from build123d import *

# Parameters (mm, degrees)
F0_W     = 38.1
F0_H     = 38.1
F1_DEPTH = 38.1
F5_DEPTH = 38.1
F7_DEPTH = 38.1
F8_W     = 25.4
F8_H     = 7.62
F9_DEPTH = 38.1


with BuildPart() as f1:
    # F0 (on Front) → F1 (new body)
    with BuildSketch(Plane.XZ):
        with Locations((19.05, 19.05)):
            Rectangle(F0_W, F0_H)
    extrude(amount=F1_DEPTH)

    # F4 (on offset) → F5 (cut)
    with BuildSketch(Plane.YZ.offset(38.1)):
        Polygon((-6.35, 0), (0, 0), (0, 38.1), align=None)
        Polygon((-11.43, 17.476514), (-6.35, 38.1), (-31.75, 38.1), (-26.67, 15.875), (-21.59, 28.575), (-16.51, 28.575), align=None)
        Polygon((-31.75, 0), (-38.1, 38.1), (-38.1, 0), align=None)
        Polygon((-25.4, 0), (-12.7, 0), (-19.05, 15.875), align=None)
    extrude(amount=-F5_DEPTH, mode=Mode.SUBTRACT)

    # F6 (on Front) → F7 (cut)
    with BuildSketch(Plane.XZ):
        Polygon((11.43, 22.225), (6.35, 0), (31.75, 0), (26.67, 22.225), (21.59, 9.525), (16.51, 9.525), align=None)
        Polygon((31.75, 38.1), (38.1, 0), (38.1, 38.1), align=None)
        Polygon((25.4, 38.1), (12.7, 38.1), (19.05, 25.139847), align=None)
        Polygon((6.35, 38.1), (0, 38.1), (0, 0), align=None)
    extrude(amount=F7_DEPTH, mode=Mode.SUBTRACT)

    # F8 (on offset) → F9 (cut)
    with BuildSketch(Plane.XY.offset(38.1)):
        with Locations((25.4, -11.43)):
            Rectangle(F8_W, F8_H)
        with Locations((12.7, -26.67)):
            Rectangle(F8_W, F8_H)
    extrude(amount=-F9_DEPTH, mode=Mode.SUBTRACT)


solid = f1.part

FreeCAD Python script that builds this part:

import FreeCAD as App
import Part
import Sketcher
Q = App.Units.Quantity

doc = App.newDocument("Part")
params = doc.addObject("Spreadsheet::Sheet", "Params")
for row, (alias, value) in enumerate([
    ("sketch1_width", "1.5 in"),
    ("pad1_length", "1.5 in"),
    ("sketch2_width", "1 in"),
    ("sketch2_width2", "0.2 in"),
    ("sketch2_width3", "0.5 in"),
    ("sketch2_height", "1.5 in"),
    ("sketch2_width4", "0.25 in"),
    ("pocket1_length", "1.5 in"),
    ("sketch3_width", "1 in"),
    ("sketch3_width2", "0.2 in"),
    ("sketch3_width3", "0.5 in"),
    ("sketch3_height", "1.5 in"),
    ("pocket2_length", "1.5 in"),
    ("sketch4_width", "1 in"),
    ("sketch4_height", "0.3 in"),
    ("pocket3_length", "1.5 in"),
], start=1):
    params.set(f"A{row}", alias)
    params.set(f"B{row}", "=" + value)
    params.setAlias(f"B{row}", alias)

body = doc.addObject("PartDesign::Body", "Body")

# Sketch on XZ plane
sketch1 = body.newObject("Sketcher::SketchObject", "Sketch")
sketch1.AttachmentSupport = (doc.getObject("XZ_Plane"), [""])
sketch1.MapMode = "FlatFace"
sketch1.addGeometry([
    Part.LineSegment(App.Vector(0, 38, 0), App.Vector(0, 0, 0)),
    Part.LineSegment(App.Vector(0, 0, 0), App.Vector(38, 0, 0)),
    Part.LineSegment(App.Vector(38, 0, 0), App.Vector(38, 38, 0)),
    Part.LineSegment(App.Vector(38, 38, 0), App.Vector(0, 38, 0)),
], False)
sketch1.addConstraint([
    Sketcher.Constraint("Coincident", 0, 2, 1, 1),
    Sketcher.Constraint("Coincident", 1, 2, 2, 1),
    Sketcher.Constraint("Coincident", 2, 2, 3, 1),
    Sketcher.Constraint("Coincident", 3, 2, 0, 1),
    Sketcher.Constraint("Vertical", 0),
    Sketcher.Constraint("Horizontal", 1),
    Sketcher.Constraint("Vertical", 2),
    Sketcher.Constraint("Horizontal", 3),
    Sketcher.Constraint("Coincident", 0, 2, -1, 1),
    Sketcher.Constraint("Equal", 3, 0),
    Sketcher.Constraint("DistanceX", 1, 1, 1, 2, Q("1.5 in")),
])
sketch1.setExpression("Constraints[10]", "Params.sketch1_width")
pad1 = body.newObject("PartDesign::Pad", "Pad")
pad1.Profile = sketch1
pad1.setExpression("Length", "Params.pad1_length")

# Sketch on YZ plane
sketch2 = body.newObject("Sketcher::SketchObject", "Sketch001")
sketch2.AttachmentSupport = (doc.getObject("YZ_Plane"), [""])
sketch2.MapMode = "FlatFace"
sketch2.AttachmentOffset = App.Placement(App.Vector(0, 0, 1.5 * 25.4), App.Rotation())
sketch2.addGeometry([
    Part.LineSegment(App.Vector(-6, 0, 0), App.Vector(0, 0, 0)),  # 0
    Part.LineSegment(App.Vector(0, 0, 0), App.Vector(0, 38, 0)),  # 1
    Part.LineSegment(App.Vector(0, 38, 0), App.Vector(-6, 0, 0)),  # 2
    Part.LineSegment(App.Vector(-11, 17, 0), App.Vector(-6, 38, 0)),  # 3
    Part.LineSegment(App.Vector(-6, 38, 0), App.Vector(-32, 38, 0)),  # 4
    Part.LineSegment(App.Vector(-32, 38, 0), App.Vector(-27, 16, 0)),  # 5
    Part.LineSegment(App.Vector(-27, 16, 0), App.Vector(-22, 29, 0)),  # 6
    Part.LineSegment(App.Vector(-22, 29, 0), App.Vector(-17, 29, 0)),  # 7
    Part.LineSegment(App.Vector(-17, 29, 0), App.Vector(-11, 17, 0)),  # 8
    Part.LineSegment(App.Vector(-32, 0, 0), App.Vector(-38, 38, 0)),  # 9
    Part.LineSegment(App.Vector(-38, 38, 0), App.Vector(-38, 0, 0)),  # 10
    Part.LineSegment(App.Vector(-38, 0, 0), App.Vector(-32, 0, 0)),  # 11
    Part.LineSegment(App.Vector(-25, 0, 0), App.Vector(-13, 0, 0)),  # 12
    Part.LineSegment(App.Vector(-13, 0, 0), App.Vector(-19, 16, 0)),  # 13
    Part.LineSegment(App.Vector(-19, 16, 0), App.Vector(-25, 0, 0)),  # 14
], False)
sketch2.addConstraint([
    Sketcher.Constraint("Coincident", 0, 2, 1, 1),
    Sketcher.Constraint("Coincident", 1, 2, 2, 1),
    Sketcher.Constraint("Coincident", 2, 2, 0, 1),
    Sketcher.Constraint("Coincident", 3, 2, 4, 1),
    Sketcher.Constraint("Coincident", 4, 2, 5, 1),
    Sketcher.Constraint("Coincident", 5, 2, 6, 1),
    Sketcher.Constraint("Coincident", 6, 2, 7, 1),
    Sketcher.Constraint("Coincident", 7, 2, 8, 1),
    Sketcher.Constraint("Coincident", 8, 2, 3, 1),
    Sketcher.Constraint("Coincident", 9, 2, 10, 1),
    Sketcher.Constraint("Coincident", 10, 2, 11, 1),
    Sketcher.Constraint("Coincident", 11, 2, 9, 1),
    Sketcher.Constraint("Coincident", 12, 2, 13, 1),
    Sketcher.Constraint("Coincident", 13, 2, 14, 1),
    Sketcher.Constraint("Coincident", 14, 2, 12, 1),
    Sketcher.Constraint("Horizontal", 0),
    Sketcher.Constraint("Vertical", 1),
    Sketcher.Constraint("Horizontal", 4),
    Sketcher.Constraint("Horizontal", 7),
    Sketcher.Constraint("Vertical", 10),
    Sketcher.Constraint("Horizontal", 11),
    Sketcher.Constraint("Horizontal", 12),
    Sketcher.Constraint("Coincident", 0, 2, -1, 1),
    Sketcher.Constraint("PointOnObject", 10, 2, -1),
    Sketcher.Constraint("PointOnObject", 12, 2, -1),
    Sketcher.Constraint("Parallel", 6, 14),
    Sketcher.Constraint("Horizontal", 1, 2, 3, 2),
    Sketcher.Constraint("Horizontal", 4, 2, 9, 2),
    Sketcher.Constraint("Horizontal", 5, 2, 13, 2),
    Sketcher.Constraint("Vertical", 2, 2, 3, 2),
    Sketcher.Constraint("Vertical", 4, 2, 11, 2),
    Sketcher.Constraint("Equal", 0, 11),
    Sketcher.Constraint("Equal", 13, 14),
    Sketcher.Constraint("DistanceX", 4, 2, 4, 1, Q("1 in")),
    Sketcher.Constraint("DistanceX", 7, 1, 7, 2, Q("0.2 in")),
    Sketcher.Constraint("DistanceX", 12, 1, 12, 2, Q("0.5 in")),
    Sketcher.Constraint("DistanceY", 1, 1, 1, 2, Q("1.5 in")),
    Sketcher.Constraint("DistanceX", 14, 2, -1, 1, Q("1 in")),
    Sketcher.Constraint("DistanceX", 0, 1, 0, 2, Q("0.25 in")),
    Sketcher.Constraint("DistanceX", 4, 2, 5, 2, Q("0.2 in")),
    Sketcher.Constraint("DistanceX", 5, 2, 6, 2, Q("0.2 in")),
    Sketcher.Constraint("DistanceY", 5, 2, 6, 2, Q("0.5 in")),
    Sketcher.Constraint("DistanceX", 7, 2, 8, 2, Q("0.2 in")),
    Sketcher.Constraint("Distance", 3, 21.239929),
])
sketch2.setExpression("Constraints[33]", "Params.sketch2_width")
sketch2.setExpression("Constraints[34]", "Params.sketch2_width2")
sketch2.setExpression("Constraints[35]", "Params.sketch2_width3")
sketch2.setExpression("Constraints[36]", "Params.sketch2_height")
sketch2.setExpression("Constraints[38]", "Params.sketch2_width4")
pocket1 = body.newObject("PartDesign::Pocket", "Pocket")
pocket1.Profile = sketch2
pocket1.setExpression("Length", "Params.pocket1_length")

# Sketch on XZ plane
sketch3 = body.newObject("Sketcher::SketchObject", "Sketch002")
sketch3.AttachmentSupport = (doc.getObject("XZ_Plane"), [""])
sketch3.MapMode = "FlatFace"
sketch3.addGeometry([
    Part.LineSegment(App.Vector(11, 22, 0), App.Vector(6, 0, 0)),  # 0
    Part.LineSegment(App.Vector(6, 0, 0), App.Vector(32, 0, 0)),  # 1
    Part.LineSegment(App.Vector(32, 0, 0), App.Vector(27, 22, 0)),  # 2
    Part.LineSegment(App.Vector(27, 22, 0), App.Vector(22, 10, 0)),  # 3
    Part.LineSegment(App.Vector(22, 10, 0), App.Vector(17, 10, 0)),  # 4
    Part.LineSegment(App.Vector(17, 10, 0), App.Vector(11, 22, 0)),  # 5
    Part.LineSegment(App.Vector(32, 38, 0), App.Vector(38, 0, 0)),  # 6
    Part.LineSegment(App.Vector(38, 0, 0), App.Vector(38, 38, 0)),  # 7
    Part.LineSegment(App.Vector(38, 38, 0), App.Vector(32, 38, 0)),  # 8
    Part.LineSegment(App.Vector(25, 38, 0), App.Vector(13, 38, 0)),  # 9
    Part.LineSegment(App.Vector(13, 38, 0), App.Vector(19, 25, 0)),  # 10
    Part.LineSegment(App.Vector(19, 25, 0), App.Vector(25, 38, 0)),  # 11
    Part.LineSegment(App.Vector(6, 38, 0), App.Vector(0, 38, 0)),  # 12
    Part.LineSegment(App.Vector(0, 38, 0), App.Vector(0, 0, 0)),  # 13
    Part.LineSegment(App.Vector(0, 0, 0), App.Vector(6, 38, 0)),  # 14
], False)
sketch3.addConstraint([
    Sketcher.Constraint("Coincident", 0, 2, 1, 1),
    Sketcher.Constraint("Coincident", 1, 2, 2, 1),
    Sketcher.Constraint("Coincident", 2, 2, 3, 1),
    Sketcher.Constraint("Coincident", 3, 2, 4, 1),
    Sketcher.Constraint("Coincident", 4, 2, 5, 1),
    Sketcher.Constraint("Coincident", 5, 2, 0, 1),
    Sketcher.Constraint("Coincident", 6, 2, 7, 1),
    Sketcher.Constraint("Coincident", 7, 2, 8, 1),
    Sketcher.Constraint("Coincident", 8, 2, 6, 1),
    Sketcher.Constraint("Coincident", 9, 2, 10, 1),
    Sketcher.Constraint("Coincident", 10, 2, 11, 1),
    Sketcher.Constraint("Coincident", 11, 2, 9, 1),
    Sketcher.Constraint("Coincident", 12, 2, 13, 1),
    Sketcher.Constraint("Coincident", 13, 2, 14, 1),
    Sketcher.Constraint("Coincident", 14, 2, 12, 1),
    Sketcher.Constraint("Horizontal", 1),
    Sketcher.Constraint("Horizontal", 4),
    Sketcher.Constraint("Vertical", 7),
    Sketcher.Constraint("Horizontal", 8),
    Sketcher.Constraint("Horizontal", 9),
    Sketcher.Constraint("Horizontal", 12),
    Sketcher.Constraint("Vertical", 13),
    Sketcher.Constraint("Coincident", 13, 2, -1, 1),
    Sketcher.Constraint("PointOnObject", 0, 2, -1),
    Sketcher.Constraint("PointOnObject", 6, 2, -1),
    Sketcher.Constraint("Horizontal", 2, 2, 5, 2),
    Sketcher.Constraint("Horizontal", 8, 2, 9, 2),
    Sketcher.Constraint("Horizontal", 11, 2, 12, 2),
    Sketcher.Constraint("Vertical", 1, 2, 8, 2),
    Sketcher.Constraint("Vertical", 0, 2, 14, 2),
    Sketcher.Constraint("Equal", 8, 12),
    Sketcher.Constraint("Equal", 0, 2),
    Sketcher.Constraint("Equal", 3, 5),
    Sketcher.Constraint("Equal", 10, 11),
    Sketcher.Constraint("DistanceX", 1, 1, 1, 2, Q("1 in")),
    Sketcher.Constraint("DistanceX", 4, 2, 4, 1, Q("0.2 in")),
    Sketcher.Constraint("DistanceX", 9, 2, 9, 1, Q("0.5 in")),
    Sketcher.Constraint("DistanceY", 7, 1, 7, 2, Q("1.5 in")),
    Sketcher.Constraint("DistanceX", -1, 1, 11, 2, Q("1 in")),
    Sketcher.Constraint("DistanceX", 9, 2, 7, 2, Q("1 in")),
    Sketcher.Constraint("DistanceX", 2, 2, 1, 2, Q("0.2 in")),
    Sketcher.Constraint("DistanceY", 3, 2, 2, 2, Q("0.5 in")),
    Sketcher.Constraint("DistanceY", -1, 1, 2, 2, Q("0.875 in")),
    Sketcher.Constraint("Distance", 10, 14.432189),
])
sketch3.setExpression("Constraints[34]", "Params.sketch3_width")
sketch3.setExpression("Constraints[35]", "Params.sketch3_width2")
sketch3.setExpression("Constraints[36]", "Params.sketch3_width3")
sketch3.setExpression("Constraints[37]", "Params.sketch3_height")
pocket2 = body.newObject("PartDesign::Pocket", "Pocket001")
pocket2.Profile = sketch3
pocket2.setExpression("Length", "Params.pocket2_length")
pocket2.Reversed = True

# Sketch on XY plane
sketch4 = body.newObject("Sketcher::SketchObject", "Sketch003")
sketch4.AttachmentSupport = (doc.getObject("XY_Plane"), [""])
sketch4.MapMode = "FlatFace"
sketch4.AttachmentOffset = App.Placement(App.Vector(0, 0, 1.5 * 25.4), App.Rotation())
sketch4.addGeometry([
    Part.LineSegment(App.Vector(13, -8, 0), App.Vector(13, -15, 0)),  # 0
    Part.LineSegment(App.Vector(13, -15, 0), App.Vector(38, -15, 0)),  # 1
    Part.LineSegment(App.Vector(38, -15, 0), App.Vector(38, -8, 0)),  # 2
    Part.LineSegment(App.Vector(38, -8, 0), App.Vector(13, -8, 0)),  # 3
    Part.LineSegment(App.Vector(0, -23, 0), App.Vector(0, -30, 0)),  # 4
    Part.LineSegment(App.Vector(0, -30, 0), App.Vector(25, -30, 0)),  # 5
    Part.LineSegment(App.Vector(25, -30, 0), App.Vector(25, -23, 0)),  # 6
    Part.LineSegment(App.Vector(25, -23, 0), App.Vector(0, -23, 0)),  # 7
], False)
sketch4.addConstraint([
    Sketcher.Constraint("Coincident", 0, 2, 1, 1),
    Sketcher.Constraint("Coincident", 1, 2, 2, 1),
    Sketcher.Constraint("Coincident", 2, 2, 3, 1),
    Sketcher.Constraint("Coincident", 3, 2, 0, 1),
    Sketcher.Constraint("Coincident", 4, 2, 5, 1),
    Sketcher.Constraint("Coincident", 5, 2, 6, 1),
    Sketcher.Constraint("Coincident", 6, 2, 7, 1),
    Sketcher.Constraint("Coincident", 7, 2, 4, 1),
    Sketcher.Constraint("Vertical", 0),
    Sketcher.Constraint("Horizontal", 1),
    Sketcher.Constraint("Vertical", 2),
    Sketcher.Constraint("Horizontal", 3),
    Sketcher.Constraint("Vertical", 4),
    Sketcher.Constraint("Horizontal", 5),
    Sketcher.Constraint("Vertical", 6),
    Sketcher.Constraint("Horizontal", 7),
    Sketcher.Constraint("PointOnObject", 4, 2, -2),
    Sketcher.Constraint("Equal", 3, 5),
    Sketcher.Constraint("Equal", 2, 4),
    Sketcher.Constraint("DistanceX", 1, 1, 1, 2, Q("1 in")),
    Sketcher.Constraint("DistanceY", 0, 2, 0, 1, Q("0.3 in")),
    Sketcher.Constraint("DistanceX", -1, 1, 0, 2, Q("0.5 in")),
    Sketcher.Constraint("DistanceY", 0, 2, -1, 1, Q("0.6 in")),
    Sketcher.Constraint("DistanceY", 4, 2, -1, 1, Q("1.2 in")),
])
sketch4.setExpression("Constraints[19]", "Params.sketch4_width")
sketch4.setExpression("Constraints[20]", "Params.sketch4_height")
pocket3 = body.newObject("PartDesign::Pocket", "Pocket002")
pocket3.Profile = sketch4
pocket3.setExpression("Length", "Params.pocket3_length")

doc.recompute()
